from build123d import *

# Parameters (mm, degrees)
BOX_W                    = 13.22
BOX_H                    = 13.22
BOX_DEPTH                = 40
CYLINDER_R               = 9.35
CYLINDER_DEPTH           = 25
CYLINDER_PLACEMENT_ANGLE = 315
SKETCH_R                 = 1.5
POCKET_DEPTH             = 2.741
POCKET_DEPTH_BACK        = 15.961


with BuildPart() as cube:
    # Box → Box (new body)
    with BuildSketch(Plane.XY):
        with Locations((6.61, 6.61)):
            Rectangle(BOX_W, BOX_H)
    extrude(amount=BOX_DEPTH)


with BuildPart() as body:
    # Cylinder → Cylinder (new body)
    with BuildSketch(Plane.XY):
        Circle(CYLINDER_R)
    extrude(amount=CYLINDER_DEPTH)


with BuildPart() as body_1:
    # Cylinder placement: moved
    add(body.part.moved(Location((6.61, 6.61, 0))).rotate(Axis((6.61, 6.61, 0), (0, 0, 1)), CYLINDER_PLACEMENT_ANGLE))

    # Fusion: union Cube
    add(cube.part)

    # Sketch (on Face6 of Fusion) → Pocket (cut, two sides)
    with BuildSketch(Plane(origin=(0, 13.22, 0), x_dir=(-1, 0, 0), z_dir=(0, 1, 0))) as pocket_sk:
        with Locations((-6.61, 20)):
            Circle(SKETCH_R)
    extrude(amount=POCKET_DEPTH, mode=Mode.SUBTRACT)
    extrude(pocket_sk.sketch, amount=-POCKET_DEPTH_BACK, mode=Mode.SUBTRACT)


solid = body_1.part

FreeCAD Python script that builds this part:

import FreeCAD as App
import Part
import Sketcher
Q = App.Units.Quantity

doc = App.newDocument("Part")
params = doc.addObject("Spreadsheet::Sheet", "Params")
for row, (alias, value) in enumerate([
    ("sketch1_width", "13.22 mm"),
    ("pad1_length", "40 mm"),
    ("sketch2_diameter", "18.7 mm"),
    ("pad2_length", "25 mm"),
    ("sketch3_diameter", "3 mm"),
], start=1):
    params.set(f"A{row}", alias)
    params.set(f"B{row}", "=" + value)
    params.setAlias(f"B{row}", alias)

body = doc.addObject("PartDesign::Body", "Body")

# Sketch on XY plane
sketch1 = body.newObject("Sketcher::SketchObject", "Sketch")
sketch1.AttachmentSupport = (doc.getObject("XY_Plane"), [""])
sketch1.MapMode = "FlatFace"
sketch1.addGeometry(Part.LineSegment(App.Vector(0, 13, 0), App.Vector(0, 0, 0)), False)
sketch1.addGeometry(Part.LineSegment(App.Vector(0, 0, 0), App.Vector(13, 0, 0)), False)
sketch1.addGeometry(Part.LineSegment(App.Vector(13, 0, 0), App.Vector(13, 13, 0)), False)
sketch1.addGeometry(Part.LineSegment(App.Vector(13, 13, 0), App.Vector(0, 13, 0)), False)
sketch1.addConstraint(Sketcher.Constraint("Coincident", 0, 2, 1, 1))
sketch1.addConstraint(Sketcher.Constraint("Coincident", 1, 2, 2, 1))
sketch1.addConstraint(Sketcher.Constraint("Coincident", 2, 2, 3, 1))
sketch1.addConstraint(Sketcher.Constraint("Coincident", 3, 2, 0, 1))
sketch1.addConstraint(Sketcher.Constraint("Vertical", 0))
sketch1.addConstraint(Sketcher.Constraint("Horizontal", 1))
sketch1.addConstraint(Sketcher.Constraint("Vertical", 2))
sketch1.addConstraint(Sketcher.Constraint("Horizontal", 3))
sketch1.addConstraint(Sketcher.Constraint("Coincident", 0, 2, -1, 1))
sketch1.addConstraint(Sketcher.Constraint("Equal", 3, 0))
sketch1.addConstraint(Sketcher.Constraint("DistanceX", 1, 1, 1, 2, Q("13.22 mm")))
sketch1.setExpression("Constraints[10]", "Params.sketch1_width")
pad1 = body.newObject("PartDesign::Pad", "Pad")
pad1.Profile = sketch1
pad1.setExpression("Length", "Params.pad1_length")
body2 = doc.addObject("PartDesign::Body", "Body001")

# Sketch on XY plane
sketch2 = body2.newObject("Sketcher::SketchObject", "Sketch001")
sketch2.AttachmentSupport = (doc.getObject("XY_Plane001"), [""])
sketch2.MapMode = "FlatFace"
sketch2.addGeometry(Part.Circle(App.Vector(0, 0, 0), App.Vector(0, 0, 1), 9), False)
sketch2.addConstraint(Sketcher.Constraint("Coincident", 0, 3, -1, 1))
sketch2.addConstraint(Sketcher.Constraint("Diameter", 0, Q("18.7 mm")))
sketch2.setExpression("Constraints[1]", "Params.sketch2_diameter")
pad2 = body2.newObject("PartDesign::Pad", "Pad001")
pad2.Profile = sketch2
pad2.setExpression("Length", "Params.pad2_length")
body3 = doc.addObject("PartDesign::Body", "Body002")
doc.recompute()

body2.Placement = App.Placement(App.Vector(6.61, 6.61, 0), App.Rotation(App.Vector(0, 0, 1), 315))
boolean = body3.newObject("PartDesign::Boolean", "Boolean")
boolean.Type = "Fuse"
boolean.addObjects([body2])
doc.recompute()

boolean2 = body3.newObject("PartDesign::Boolean", "Boolean001")
boolean2.Type = "Fuse"
boolean2.addObjects([body])

# Sketch on XZ plane
sketch3 = body3.newObject("Sketcher::SketchObject", "Sketch002")
sketch3.AttachmentSupport = (doc.getObject("XZ_Plane002"), [""])
sketch3.MapMode = "FlatFace"
sketch3.AttachmentOffset = App.Placement(App.Vector(0, 0, -13.22), App.Rotation())
sketch3.addGeometry(Part.Circle(App.Vector(6.6, 20, 0), App.Vector(0, 0, 1), 1.5), False)
sketch3.addConstraint(Sketcher.Constraint("Diameter", 0, Q("3 mm")))
sketch3.addConstraint(Sketcher.Constraint("DistanceY", -1, 1, 0, 3, Q("20 mm")))
sketch3.addConstraint(Sketcher.Constraint("DistanceX", -1, 1, 0, 3, Q("6.61 mm")))
sketch3.setExpression("Constraints[0]", "Params.sketch3_diameter")
pocket1 = body3.newObject("PartDesign::Pocket", "Pocket")
pocket1.Profile = sketch3
pocket1.Type = "ThroughAll"
pocket1.Midplane = True

doc.recompute()
